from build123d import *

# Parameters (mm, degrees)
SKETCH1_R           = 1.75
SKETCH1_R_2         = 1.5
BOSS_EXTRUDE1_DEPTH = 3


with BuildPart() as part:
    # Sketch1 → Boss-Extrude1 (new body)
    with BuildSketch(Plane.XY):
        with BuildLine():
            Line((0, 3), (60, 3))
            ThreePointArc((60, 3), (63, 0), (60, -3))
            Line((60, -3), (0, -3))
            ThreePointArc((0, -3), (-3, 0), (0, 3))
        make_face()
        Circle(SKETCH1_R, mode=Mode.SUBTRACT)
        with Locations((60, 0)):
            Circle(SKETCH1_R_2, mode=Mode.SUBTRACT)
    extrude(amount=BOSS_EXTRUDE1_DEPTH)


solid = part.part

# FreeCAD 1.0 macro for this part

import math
import FreeCAD as App
import Part
import Sketcher

doc = App.newDocument("Part")
body = doc.addObject("PartDesign::Body", "Body")

# Sketch on XY plane
sketch1 = doc.addObject("Sketcher::SketchObject", "Sketch")
body.addObject(sketch1)
sketch1.AttachmentSupport = (doc.XY_Plane, [""])
sketch1.MapMode = "FlatFace"
sketch1.addGeometry(Part.LineSegment(App.Vector(60, 3, 0), App.Vector(0, 3, 0)), False)
sketch1.addGeometry(Part.ArcOfCircle(Part.Circle(App.Vector(0, 0, 0), App.Vector(0, 0, 1), 3), math.radians(90), math.radians(270)), False)
sketch1.addGeometry(Part.LineSegment(App.Vector(0, -3, 0), App.Vector(60, -3, 0)), False)
sketch1.addGeometry(Part.ArcOfCircle(Part.Circle(App.Vector(60, 0, 0), App.Vector(0, 0, 1), 3), math.radians(-90), math.radians(90)), False)
sketch1.addGeometry(Part.Circle(App.Vector(60, 0, 0), App.Vector(0, 0, 1), 1.5), False)
sketch1.addGeometry(Part.Circle(App.Vector(0, 0, 0), App.Vector(0, 0, 1), 1.8), False)
sketch1.addConstraint(Sketcher.Constraint("Tangent", 0, 2, 1, 1))
sketch1.addConstraint(Sketcher.Constraint("Tangent", 1, 2, 2, 1))
sketch1.addConstraint(Sketcher.Constraint("Tangent", 2, 2, 3, 1))
sketch1.addConstraint(Sketcher.Constraint("Tangent", 3, 2, 0, 1))
sketch1.addConstraint(Sketcher.Constraint("Horizontal", 0))
sketch1.addConstraint(Sketcher.Constraint("Horizontal", 2))
sketch1.addConstraint(Sketcher.Constraint("Coincident", 1, 3, -1, 1))
sketch1.addConstraint(Sketcher.Constraint("Coincident", 5, 3, -1, 1))
sketch1.addConstraint(Sketcher.Constraint("Coincident", 4, 3, 3, 3))
sketch1.addConstraint(Sketcher.Constraint("Diameter", 4, 3.0))
sketch1.addConstraint(Sketcher.Constraint("Radius", 1, 3.0))
sketch1.addConstraint(Sketcher.Constraint("Diameter", 5, 3.5))
sketch1.addConstraint(Sketcher.Constraint("DistanceX", 0, 2, 0, 1, 60.0))
pad1 = doc.addObject("PartDesign::Pad", "Pad")
body.addObject(pad1)
pad1.Profile = sketch1
pad1.Length = 3

doc.recompute()
